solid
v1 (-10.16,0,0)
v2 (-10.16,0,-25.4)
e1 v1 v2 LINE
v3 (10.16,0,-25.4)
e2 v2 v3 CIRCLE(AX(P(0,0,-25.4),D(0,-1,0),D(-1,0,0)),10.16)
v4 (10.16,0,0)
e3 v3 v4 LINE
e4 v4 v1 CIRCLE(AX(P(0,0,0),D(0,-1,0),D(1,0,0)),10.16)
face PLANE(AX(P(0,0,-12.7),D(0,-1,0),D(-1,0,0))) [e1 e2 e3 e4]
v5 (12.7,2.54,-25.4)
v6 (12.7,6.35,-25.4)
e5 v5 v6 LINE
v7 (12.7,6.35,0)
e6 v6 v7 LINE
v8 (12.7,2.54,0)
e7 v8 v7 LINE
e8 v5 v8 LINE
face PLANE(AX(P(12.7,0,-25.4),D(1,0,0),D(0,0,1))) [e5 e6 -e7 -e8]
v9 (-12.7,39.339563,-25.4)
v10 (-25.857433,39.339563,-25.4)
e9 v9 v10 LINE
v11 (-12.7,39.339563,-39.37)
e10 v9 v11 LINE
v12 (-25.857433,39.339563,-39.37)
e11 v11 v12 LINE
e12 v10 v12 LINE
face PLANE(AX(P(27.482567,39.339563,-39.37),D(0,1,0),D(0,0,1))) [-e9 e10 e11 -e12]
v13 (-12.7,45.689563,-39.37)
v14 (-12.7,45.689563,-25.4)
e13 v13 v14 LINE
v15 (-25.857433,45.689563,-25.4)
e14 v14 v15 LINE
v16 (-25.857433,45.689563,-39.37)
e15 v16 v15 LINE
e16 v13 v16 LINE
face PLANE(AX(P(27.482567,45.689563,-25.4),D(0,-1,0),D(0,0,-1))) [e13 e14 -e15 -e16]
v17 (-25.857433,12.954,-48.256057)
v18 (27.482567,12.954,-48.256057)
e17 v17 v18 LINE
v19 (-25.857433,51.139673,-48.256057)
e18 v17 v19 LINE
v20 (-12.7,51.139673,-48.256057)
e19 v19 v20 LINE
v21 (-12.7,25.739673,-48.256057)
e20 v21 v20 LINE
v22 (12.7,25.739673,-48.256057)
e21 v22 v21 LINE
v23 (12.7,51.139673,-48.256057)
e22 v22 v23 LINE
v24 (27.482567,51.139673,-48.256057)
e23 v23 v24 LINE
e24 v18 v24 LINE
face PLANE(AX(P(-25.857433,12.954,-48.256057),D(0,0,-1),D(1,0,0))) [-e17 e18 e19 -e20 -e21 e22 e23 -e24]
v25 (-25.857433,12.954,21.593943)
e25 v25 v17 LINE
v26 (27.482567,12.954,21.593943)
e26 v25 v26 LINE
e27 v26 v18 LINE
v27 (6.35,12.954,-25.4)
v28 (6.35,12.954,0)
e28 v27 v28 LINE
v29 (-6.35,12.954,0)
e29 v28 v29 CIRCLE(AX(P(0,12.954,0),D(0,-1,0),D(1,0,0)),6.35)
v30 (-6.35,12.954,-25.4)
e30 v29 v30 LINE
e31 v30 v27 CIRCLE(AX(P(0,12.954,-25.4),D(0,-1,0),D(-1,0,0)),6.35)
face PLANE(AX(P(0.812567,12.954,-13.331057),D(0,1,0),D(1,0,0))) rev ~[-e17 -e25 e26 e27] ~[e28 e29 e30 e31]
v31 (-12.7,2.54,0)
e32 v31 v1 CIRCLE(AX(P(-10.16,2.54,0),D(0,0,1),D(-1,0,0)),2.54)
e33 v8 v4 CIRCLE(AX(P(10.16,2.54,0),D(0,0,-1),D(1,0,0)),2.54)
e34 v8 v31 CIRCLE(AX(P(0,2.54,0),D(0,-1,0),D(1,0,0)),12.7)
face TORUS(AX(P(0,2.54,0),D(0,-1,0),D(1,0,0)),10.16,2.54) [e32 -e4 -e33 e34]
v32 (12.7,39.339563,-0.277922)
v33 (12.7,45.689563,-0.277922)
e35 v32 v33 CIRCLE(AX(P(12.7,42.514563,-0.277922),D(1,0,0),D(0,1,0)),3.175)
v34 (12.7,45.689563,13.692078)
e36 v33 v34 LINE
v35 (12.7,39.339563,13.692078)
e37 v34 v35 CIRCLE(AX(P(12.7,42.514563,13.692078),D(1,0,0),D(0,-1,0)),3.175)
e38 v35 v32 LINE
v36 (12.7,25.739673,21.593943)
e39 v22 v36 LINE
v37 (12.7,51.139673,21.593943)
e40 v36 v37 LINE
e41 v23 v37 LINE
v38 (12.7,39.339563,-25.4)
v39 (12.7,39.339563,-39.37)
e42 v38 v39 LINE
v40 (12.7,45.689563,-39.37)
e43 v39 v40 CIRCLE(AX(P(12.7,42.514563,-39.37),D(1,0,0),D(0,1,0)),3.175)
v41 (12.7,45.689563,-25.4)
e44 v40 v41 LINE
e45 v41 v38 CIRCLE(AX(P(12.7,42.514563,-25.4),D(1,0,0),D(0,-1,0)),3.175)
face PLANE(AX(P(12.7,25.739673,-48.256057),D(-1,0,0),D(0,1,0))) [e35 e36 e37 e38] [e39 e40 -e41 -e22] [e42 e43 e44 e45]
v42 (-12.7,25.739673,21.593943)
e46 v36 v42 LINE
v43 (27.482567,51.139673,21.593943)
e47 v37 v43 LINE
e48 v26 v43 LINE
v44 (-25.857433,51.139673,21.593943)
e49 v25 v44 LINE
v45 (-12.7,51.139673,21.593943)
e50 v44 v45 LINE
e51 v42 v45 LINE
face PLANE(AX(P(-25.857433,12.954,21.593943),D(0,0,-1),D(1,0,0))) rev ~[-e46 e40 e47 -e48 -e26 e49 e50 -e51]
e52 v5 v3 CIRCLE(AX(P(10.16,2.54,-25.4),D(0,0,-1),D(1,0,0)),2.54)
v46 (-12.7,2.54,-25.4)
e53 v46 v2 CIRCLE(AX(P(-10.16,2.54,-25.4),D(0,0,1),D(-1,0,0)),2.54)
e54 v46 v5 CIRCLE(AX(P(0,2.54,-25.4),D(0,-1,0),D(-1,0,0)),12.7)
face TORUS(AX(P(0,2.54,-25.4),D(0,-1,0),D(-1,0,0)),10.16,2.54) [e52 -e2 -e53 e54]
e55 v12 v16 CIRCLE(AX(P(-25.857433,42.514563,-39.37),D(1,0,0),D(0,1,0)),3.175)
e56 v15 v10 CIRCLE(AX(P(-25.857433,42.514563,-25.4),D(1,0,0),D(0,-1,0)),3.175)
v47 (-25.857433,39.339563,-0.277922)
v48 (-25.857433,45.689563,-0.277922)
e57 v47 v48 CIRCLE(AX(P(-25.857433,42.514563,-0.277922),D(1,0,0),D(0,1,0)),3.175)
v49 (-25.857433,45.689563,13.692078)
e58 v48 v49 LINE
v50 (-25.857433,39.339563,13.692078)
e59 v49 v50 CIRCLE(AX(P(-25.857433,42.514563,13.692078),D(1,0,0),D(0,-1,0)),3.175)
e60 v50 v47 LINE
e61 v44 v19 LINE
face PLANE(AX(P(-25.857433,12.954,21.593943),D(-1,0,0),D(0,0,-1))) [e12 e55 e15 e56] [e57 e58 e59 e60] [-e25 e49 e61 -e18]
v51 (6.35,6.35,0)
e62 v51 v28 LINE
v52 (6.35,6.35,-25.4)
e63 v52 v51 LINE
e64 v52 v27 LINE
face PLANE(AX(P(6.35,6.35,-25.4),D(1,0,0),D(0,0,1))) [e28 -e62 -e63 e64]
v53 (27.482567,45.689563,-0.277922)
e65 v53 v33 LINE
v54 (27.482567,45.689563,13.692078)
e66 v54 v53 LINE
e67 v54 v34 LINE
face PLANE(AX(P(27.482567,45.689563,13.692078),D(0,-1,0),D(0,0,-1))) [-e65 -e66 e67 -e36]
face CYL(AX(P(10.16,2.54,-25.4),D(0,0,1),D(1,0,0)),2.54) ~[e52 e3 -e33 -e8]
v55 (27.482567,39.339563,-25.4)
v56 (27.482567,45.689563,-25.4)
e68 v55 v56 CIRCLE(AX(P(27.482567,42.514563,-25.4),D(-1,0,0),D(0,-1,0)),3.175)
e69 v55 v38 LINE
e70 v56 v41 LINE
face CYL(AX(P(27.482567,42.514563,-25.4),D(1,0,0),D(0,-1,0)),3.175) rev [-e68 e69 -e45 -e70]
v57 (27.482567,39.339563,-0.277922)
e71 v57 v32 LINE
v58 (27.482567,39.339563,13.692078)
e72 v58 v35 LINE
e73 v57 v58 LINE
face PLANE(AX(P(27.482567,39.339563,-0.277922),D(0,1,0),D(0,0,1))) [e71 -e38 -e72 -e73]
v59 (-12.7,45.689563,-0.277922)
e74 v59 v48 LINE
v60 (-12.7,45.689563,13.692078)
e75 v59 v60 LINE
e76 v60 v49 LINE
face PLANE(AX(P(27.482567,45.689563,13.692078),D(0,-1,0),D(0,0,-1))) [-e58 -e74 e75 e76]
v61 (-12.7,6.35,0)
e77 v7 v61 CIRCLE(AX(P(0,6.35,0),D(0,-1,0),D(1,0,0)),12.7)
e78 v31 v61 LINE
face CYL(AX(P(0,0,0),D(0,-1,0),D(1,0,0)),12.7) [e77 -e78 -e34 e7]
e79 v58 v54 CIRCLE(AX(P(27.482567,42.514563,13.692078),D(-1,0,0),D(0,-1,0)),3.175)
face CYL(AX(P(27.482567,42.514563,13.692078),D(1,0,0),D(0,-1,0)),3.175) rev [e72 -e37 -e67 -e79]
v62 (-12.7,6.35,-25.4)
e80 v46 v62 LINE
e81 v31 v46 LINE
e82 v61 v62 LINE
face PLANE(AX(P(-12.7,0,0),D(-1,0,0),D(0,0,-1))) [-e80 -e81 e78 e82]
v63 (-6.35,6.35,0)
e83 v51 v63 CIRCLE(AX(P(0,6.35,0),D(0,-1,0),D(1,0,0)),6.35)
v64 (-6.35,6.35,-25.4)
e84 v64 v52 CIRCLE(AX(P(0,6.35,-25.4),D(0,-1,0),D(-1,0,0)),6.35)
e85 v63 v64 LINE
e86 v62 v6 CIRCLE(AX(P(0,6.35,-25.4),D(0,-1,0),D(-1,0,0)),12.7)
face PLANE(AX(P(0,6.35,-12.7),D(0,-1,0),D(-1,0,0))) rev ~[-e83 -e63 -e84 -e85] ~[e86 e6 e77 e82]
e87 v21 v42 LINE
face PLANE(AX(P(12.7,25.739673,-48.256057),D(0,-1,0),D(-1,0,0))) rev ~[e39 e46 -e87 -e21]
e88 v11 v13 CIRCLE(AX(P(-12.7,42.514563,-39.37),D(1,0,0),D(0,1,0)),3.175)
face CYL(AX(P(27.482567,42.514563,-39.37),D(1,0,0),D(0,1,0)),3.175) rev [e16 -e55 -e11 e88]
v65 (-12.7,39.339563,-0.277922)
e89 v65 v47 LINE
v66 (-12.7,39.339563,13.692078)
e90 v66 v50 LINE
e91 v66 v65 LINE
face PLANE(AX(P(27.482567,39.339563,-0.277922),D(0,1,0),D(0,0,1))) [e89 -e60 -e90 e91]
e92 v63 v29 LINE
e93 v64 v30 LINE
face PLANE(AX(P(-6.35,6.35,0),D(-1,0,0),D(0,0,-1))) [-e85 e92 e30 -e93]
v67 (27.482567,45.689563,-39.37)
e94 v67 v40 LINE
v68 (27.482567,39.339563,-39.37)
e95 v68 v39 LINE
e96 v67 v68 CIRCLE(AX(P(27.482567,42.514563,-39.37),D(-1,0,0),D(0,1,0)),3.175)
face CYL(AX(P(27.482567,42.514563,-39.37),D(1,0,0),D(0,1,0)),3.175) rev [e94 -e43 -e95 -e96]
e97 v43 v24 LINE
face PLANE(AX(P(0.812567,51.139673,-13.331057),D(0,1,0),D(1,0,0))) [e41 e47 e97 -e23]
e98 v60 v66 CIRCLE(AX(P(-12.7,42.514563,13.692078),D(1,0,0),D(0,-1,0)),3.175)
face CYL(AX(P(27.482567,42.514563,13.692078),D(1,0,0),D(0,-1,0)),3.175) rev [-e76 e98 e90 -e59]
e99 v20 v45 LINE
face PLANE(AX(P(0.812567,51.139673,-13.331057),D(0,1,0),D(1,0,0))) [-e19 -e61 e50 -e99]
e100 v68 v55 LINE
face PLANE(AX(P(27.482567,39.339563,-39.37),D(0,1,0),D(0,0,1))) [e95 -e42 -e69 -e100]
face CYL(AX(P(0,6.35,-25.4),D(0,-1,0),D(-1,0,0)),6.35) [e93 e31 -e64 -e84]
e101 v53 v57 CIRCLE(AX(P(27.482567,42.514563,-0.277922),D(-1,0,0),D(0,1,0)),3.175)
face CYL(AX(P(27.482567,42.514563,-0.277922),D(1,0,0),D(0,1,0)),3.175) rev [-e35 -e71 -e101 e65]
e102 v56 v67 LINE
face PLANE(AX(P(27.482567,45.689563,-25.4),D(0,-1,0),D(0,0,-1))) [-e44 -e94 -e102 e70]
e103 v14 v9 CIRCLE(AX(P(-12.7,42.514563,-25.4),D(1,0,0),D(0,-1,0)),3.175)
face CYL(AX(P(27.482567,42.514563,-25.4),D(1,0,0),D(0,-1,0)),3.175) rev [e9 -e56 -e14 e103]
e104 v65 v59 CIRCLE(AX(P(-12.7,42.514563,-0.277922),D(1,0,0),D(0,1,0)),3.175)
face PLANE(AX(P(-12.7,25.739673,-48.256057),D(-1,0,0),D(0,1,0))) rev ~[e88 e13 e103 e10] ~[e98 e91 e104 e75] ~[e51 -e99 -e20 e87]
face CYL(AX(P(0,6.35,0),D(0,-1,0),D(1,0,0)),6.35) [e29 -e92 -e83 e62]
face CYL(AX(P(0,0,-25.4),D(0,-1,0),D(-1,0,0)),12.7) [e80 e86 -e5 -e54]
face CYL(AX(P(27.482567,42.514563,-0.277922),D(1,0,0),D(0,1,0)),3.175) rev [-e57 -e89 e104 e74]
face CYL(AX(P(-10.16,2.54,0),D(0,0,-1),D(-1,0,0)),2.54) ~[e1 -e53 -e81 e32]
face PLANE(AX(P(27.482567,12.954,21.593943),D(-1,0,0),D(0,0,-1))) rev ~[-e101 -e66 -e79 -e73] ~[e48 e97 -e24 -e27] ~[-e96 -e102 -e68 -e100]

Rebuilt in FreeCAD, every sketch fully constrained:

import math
import FreeCAD as App
import Part
import Sketcher

V = App.Vector
Q = App.Units.Quantity


def edges_at(feature, points):
    """Names of the edges that pass closest to the given points."""
    edges = feature.Shape.Edges
    near = lambda p: min(range(len(edges)), key=lambda i: edges[i].distToShape(Part.Vertex(*p))[0])
    return sorted({f"Edge{near(p) + 1}" for p in points})

doc = App.newDocument("Part")
body = doc.addObject("PartDesign::Body", "Body")

# Sketch on XZ plane
sketch1 = body.newObject("Sketcher::SketchObject", "Sketch")
sketch1.AttachmentSupport = (doc.getObject("XZ_Plane"), [""])
sketch1.MapMode = "FlatFace"
sketch1.addGeometry([
    Part.LineSegment(V(-12.7, -25.4, 0), V(-12.7, 0, 0)),
    Part.ArcOfCircle(Part.Circle(V(0, 0, 0), V(0, 0, 1), 12.7), math.radians(0), math.radians(180)),
    Part.LineSegment(V(12.7, 0, 0), V(12.7, -25.4, 0)),
    Part.ArcOfCircle(Part.Circle(V(0, -25.4, 0), V(0, 0, 1), 12.7), math.radians(180), math.radians(360)),
], False)
sketch1.addConstraint([
    Sketcher.Constraint("Tangent", 0, 2, 1, 2),
    Sketcher.Constraint("Tangent", 1, 1, 2, 1),
    Sketcher.Constraint("Tangent", 2, 2, 3, 2),
    Sketcher.Constraint("Tangent", 3, 1, 0, 1),
    Sketcher.Constraint("Vertical", 0),
    Sketcher.Constraint("Vertical", 2),
    Sketcher.Constraint("Coincident", 1, 3, -1, 1),
    Sketcher.Constraint("Radius", 1, Q("0.5 in")),
    Sketcher.Constraint("DistanceY", 0, 1, 0, 2, Q("1 in")),
])
pad1 = body.newObject("PartDesign::Pad", "Pad")
pad1.Profile = sketch1
pad1.Length = Q("0.25 in")
pad1.Reversed = True

# Sketch on XZ plane
sketch2 = body.newObject("Sketcher::SketchObject", "Sketch001")
sketch2.AttachmentSupport = (doc.getObject("XZ_Plane"), [""])
sketch2.MapMode = "FlatFace"
sketch2.AttachmentOffset = App.Placement(V(0, 0, -0.25 * 25.4), App.Rotation())
sketch2.addGeometry([
    Part.LineSegment(V(-6.35, -25.4, 0), V(-6.35, 0, 0)),
    Part.ArcOfCircle(Part.Circle(V(0, 0, 0), V(0, 0, 1), 6.35), math.radians(0), math.radians(180)),
    Part.LineSegment(V(6.35, 0, 0), V(6.35, -25.4, 0)),
    Part.ArcOfCircle(Part.Circle(V(0, -25.4, 0), V(0, 0, 1), 6.35), math.radians(180), math.radians(360)),
], False)
sketch2.addConstraint([
    Sketcher.Constraint("Tangent", 0, 2, 1, 2),
    Sketcher.Constraint("Tangent", 1, 1, 2, 1),
    Sketcher.Constraint("Tangent", 2, 2, 3, 2),
    Sketcher.Constraint("Tangent", 3, 1, 0, 1),
    Sketcher.Constraint("Vertical", 0),
    Sketcher.Constraint("Vertical", 2),
    Sketcher.Constraint("Coincident", 1, 3, -1, 1),
    Sketcher.Constraint("DistanceY", 0, 1, 0, 2, Q("1 in")),
    Sketcher.Constraint("Radius", 1, Q("0.25 in")),
])
pad2 = body.newObject("PartDesign::Pad", "Pad001")
pad2.Profile = sketch2
pad2.Length = Q("0.26 in")
pad2.Reversed = True

# Sketch on XZ plane
sketch3 = body.newObject("Sketcher::SketchObject", "Sketch002")
sketch3.AttachmentSupport = (doc.getObject("XZ_Plane"), [""])
sketch3.MapMode = "FlatFace"
sketch3.AttachmentOffset = App.Placement(V(0, 0, -0.51 * 25.4), App.Rotation())
sketch3.addGeometry([
    Part.LineSegment(V(-25.857433, -48.256057, 0), V(-25.857433, 21.593943, 0)),
    Part.LineSegment(V(-25.857433, 21.593943, 0), V(27.482567, 21.593943, 0)),
    Part.LineSegment(V(27.482567, 21.593943, 0), V(27.482567, -48.256057, 0)),
    Part.LineSegment(V(27.482567, -48.256057, 0), V(-25.857433, -48.256057, 0)),
], False)
sketch3.addConstraint([
    Sketcher.Constraint("Coincident", 0, 2, 1, 1),
    Sketcher.Constraint("Coincident", 1, 2, 2, 1),
    Sketcher.Constraint("Coincident", 2, 2, 3, 1),
    Sketcher.Constraint("Coincident", 3, 2, 0, 1),
    Sketcher.Constraint("Vertical", 0),
    Sketcher.Constraint("Horizontal", 1),
    Sketcher.Constraint("Vertical", 2),
    Sketcher.Constraint("Horizontal", 3),
    Sketcher.Constraint("DistanceX", 1, 1, 1, 2, Q("2.1 in")),
    Sketcher.Constraint("DistanceY", 0, 1, 0, 2, Q("2.75 in")),
    Sketcher.Constraint("DistanceX", 0, 2, -1, 1, 25.857433),
    Sketcher.Constraint("DistanceY", -1, 1, 0, 2, 21.593943),
])
pad3 = body.newObject("PartDesign::Pad", "Pad002")
pad3.Profile = sketch3
pad3.Length = 38.185673
pad3.Reversed = True
doc.recompute()

fillet = body.newObject("PartDesign::Fillet", "Fillet")
fillet.Base = (pad3, edges_at(pad3, [
    (-12.7, 0, -12.7),
    (0, 0, -38.1),
    (12.7, 0, -12.7),
    (0, 0, 12.7),
]))
fillet.Radius = Q("0.1 in")

# Sketch on XY plane
sketch4 = body.newObject("Sketcher::SketchObject", "Sketch003")
sketch4.AttachmentSupport = (doc.getObject("XY_Plane"), [""])
sketch4.MapMode = "FlatFace"
sketch4.AttachmentOffset = App.Placement(V(0, 0, -48.256057), App.Rotation())
sketch4.addGeometry([
    Part.LineSegment(V(12.7, 51.139673, 0), V(12.7, 25.739673, 0)),
    Part.LineSegment(V(12.7, 25.739673, 0), V(-12.7, 25.739673, 0)),
    Part.LineSegment(V(-12.7, 25.739673, 0), V(-12.7, 51.139673, 0)),
    Part.LineSegment(V(-12.7, 51.139673, 0), V(12.7, 51.139673, 0)),
], False)
sketch4.addConstraint([
    Sketcher.Constraint("Coincident", 0, 2, 1, 1),
    Sketcher.Constraint("Coincident", 1, 2, 2, 1),
    Sketcher.Constraint("Coincident", 2, 2, 3, 1),
    Sketcher.Constraint("Coincident", 3, 2, 0, 1),
    Sketcher.Constraint("Vertical", 0),
    Sketcher.Constraint("Horizontal", 1),
    Sketcher.Constraint("Vertical", 2),
    Sketcher.Constraint("Horizontal", 3),
    Sketcher.Constraint("Equal", 3, 0),
    Sketcher.Constraint("DistanceX", 1, 2, 1, 1, Q("1 in")),
    Sketcher.Constraint("DistanceX", -1, 1, 0, 2, Q("0.5 in")),
    Sketcher.Constraint("DistanceY", -1, 1, 0, 2, 25.739673),
])
pocket1 = body.newObject("PartDesign::Pocket", "Pocket")
pocket1.Profile = sketch4
pocket1.Length = Q("2.77 in")
pocket1.Reversed = True

# Sketch on YZ plane
sketch5 = body.newObject("Sketcher::SketchObject", "Sketch004")
sketch5.AttachmentSupport = (doc.getObject("YZ_Plane"), [""])
sketch5.MapMode = "FlatFace"
sketch5.AttachmentOffset = App.Placement(V(0, 0, 27.482567), App.Rotation())
sketch5.addGeometry([
    Part.LineSegment(V(39.339563, 13.692078, 0), V(39.339563, -0.277922, 0)),  # 0
    Part.ArcOfCircle(Part.Circle(V(42.514563, -0.277922, 0), V(0, 0, 1), 3.175), math.radians(180), math.radians(360)),  # 1
    Part.LineSegment(V(45.689563, -0.277922, 0), V(45.689563, 13.692078, 0)),  # 2
    Part.ArcOfCircle(Part.Circle(V(42.514563, 13.692078, 0), V(0, 0, 1), 3.175), math.radians(0), math.radians(180)),  # 3
    Part.LineSegment(V(45.689563, -39.37, 0), V(45.689563, -25.4, 0)),  # 4
    Part.ArcOfCircle(Part.Circle(V(42.514563, -25.4, 0), V(0, 0, 1), 3.175), math.radians(0), math.radians(180)),  # 5
    Part.LineSegment(V(39.339563, -25.4, 0), V(39.339563, -39.37, 0)),  # 6
    Part.ArcOfCircle(Part.Circle(V(42.514563, -39.37, 0), V(0, 0, 1), 3.175), math.radians(180), math.radians(360)),  # 7
], False)
sketch5.addConstraint([
    Sketcher.Constraint("Tangent", 0, 2, 1, 1),
    Sketcher.Constraint("Tangent", 1, 2, 2, 1),
    Sketcher.Constraint("Tangent", 2, 2, 3, 1),
    Sketcher.Constraint("Tangent", 3, 2, 0, 1),
    Sketcher.Constraint("Tangent", 4, 2, 5, 1),
    Sketcher.Constraint("Tangent", 5, 2, 6, 1),
    Sketcher.Constraint("Tangent", 6, 2, 7, 1),
    Sketcher.Constraint("Tangent", 7, 2, 4, 1),
    Sketcher.Constraint("Vertical", 0),
    Sketcher.Constraint("Vertical", 2),
    Sketcher.Constraint("Vertical", 4),
    Sketcher.Constraint("Vertical", 6),
    Sketcher.Constraint("Equal", 3, 5),
    Sketcher.Constraint("Vertical", 3, 3, 5, 3),
    Sketcher.Constraint("Equal", 2, 4),
    Sketcher.Constraint("DistanceY", 5, 3, -1, 1, Q("1 in")),
    Sketcher.Constraint("Radius", 1, Q("0.125 in")),
    Sketcher.Constraint("DistanceY", 0, 2, 0, 1, Q("0.55 in")),
    Sketcher.Constraint("DistanceY", 1, 3, -1, 1, 0.277922),
    Sketcher.Constraint("DistanceX", -1, 1, 1, 3, 42.514563),
])
pocket2 = body.newObject("PartDesign::Pocket", "Pocket001")
pocket2.Profile = sketch5
pocket2.Type = "ThroughAll"

doc.recompute()
